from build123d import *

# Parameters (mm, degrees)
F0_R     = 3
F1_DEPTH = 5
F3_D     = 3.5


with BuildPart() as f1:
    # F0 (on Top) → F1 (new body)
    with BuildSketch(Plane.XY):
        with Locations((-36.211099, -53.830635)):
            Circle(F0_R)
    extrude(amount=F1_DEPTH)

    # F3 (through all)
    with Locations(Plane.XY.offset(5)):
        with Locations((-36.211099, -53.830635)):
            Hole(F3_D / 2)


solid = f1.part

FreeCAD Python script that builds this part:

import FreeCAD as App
import Part
import Sketcher

doc = App.newDocument("Part")
params = doc.addObject("Spreadsheet::Sheet", "Params")
for row, (alias, value) in enumerate([
    ("sketch1_diameter", "6 mm"),
    ("pad1_length", "5 mm"),
    ("sketch2_diameter", "3.5 mm"),
    ("hole_diameter", "3.5 mm"),
], start=1):
    params.set(f"A{row}", alias)
    params.set(f"B{row}", "=" + value)
    params.setAlias(f"B{row}", alias)

body = doc.addObject("PartDesign::Body", "Body")

sketch1 = doc.addObject("Sketcher::SketchObject", "Sketch")
body.addObject(sketch1)
sketch1.AttachmentSupport = (doc.XY_Plane, [""])
sketch1.MapMode = "FlatFace"
sketch1.addGeometry(Part.Circle(App.Vector(-36.2, -53.8, 0), App.Vector(0, 0, 1), 3), False)
sketch1.addConstraint(Sketcher.Constraint("Diameter", 0, 6.0))
sketch1.addConstraint(Sketcher.Constraint("DistanceX", 0, 3, -1, 1, 36.211099))
sketch1.addConstraint(Sketcher.Constraint("DistanceY", 0, 3, -1, 1, 53.830635))
sketch1.setExpression("Constraints[0]", "Params.sketch1_diameter")
pad1 = doc.addObject("PartDesign::Pad", "Pad")
body.addObject(pad1)
pad1.Profile = sketch1
pad1.setExpression("Length", "Params.pad1_length")

sketch2 = doc.addObject("Sketcher::SketchObject", "Sketch001")
body.addObject(sketch2)
sketch2.AttachmentSupport = (doc.XY_Plane, [""])
sketch2.MapMode = "FlatFace"
sketch2.AttachmentOffset = App.Placement(App.Vector(0, 0, 5), App.Rotation())
sketch2.addGeometry(Part.Circle(App.Vector(-36.2, -53.8, 0), App.Vector(0, 0, 1), 1.8), False)
sketch2.addConstraint(Sketcher.Constraint("Diameter", 0, 3.5))
sketch2.addConstraint(Sketcher.Constraint("DistanceX", 0, 3, -1, 1, 36.211099))
sketch2.addConstraint(Sketcher.Constraint("DistanceY", 0, 3, -1, 1, 53.830635))
sketch2.setExpression("Constraints[0]", "Params.sketch2_diameter")
doc.recompute()
hole = doc.addObject("PartDesign::Hole", "Hole")
body.addObject(hole)
hole.Profile = sketch2
hole.ThreadType = "None"
hole.setExpression("Diameter", "Params.hole_diameter")
hole.DepthType = "ThroughAll"

doc.recompute()
